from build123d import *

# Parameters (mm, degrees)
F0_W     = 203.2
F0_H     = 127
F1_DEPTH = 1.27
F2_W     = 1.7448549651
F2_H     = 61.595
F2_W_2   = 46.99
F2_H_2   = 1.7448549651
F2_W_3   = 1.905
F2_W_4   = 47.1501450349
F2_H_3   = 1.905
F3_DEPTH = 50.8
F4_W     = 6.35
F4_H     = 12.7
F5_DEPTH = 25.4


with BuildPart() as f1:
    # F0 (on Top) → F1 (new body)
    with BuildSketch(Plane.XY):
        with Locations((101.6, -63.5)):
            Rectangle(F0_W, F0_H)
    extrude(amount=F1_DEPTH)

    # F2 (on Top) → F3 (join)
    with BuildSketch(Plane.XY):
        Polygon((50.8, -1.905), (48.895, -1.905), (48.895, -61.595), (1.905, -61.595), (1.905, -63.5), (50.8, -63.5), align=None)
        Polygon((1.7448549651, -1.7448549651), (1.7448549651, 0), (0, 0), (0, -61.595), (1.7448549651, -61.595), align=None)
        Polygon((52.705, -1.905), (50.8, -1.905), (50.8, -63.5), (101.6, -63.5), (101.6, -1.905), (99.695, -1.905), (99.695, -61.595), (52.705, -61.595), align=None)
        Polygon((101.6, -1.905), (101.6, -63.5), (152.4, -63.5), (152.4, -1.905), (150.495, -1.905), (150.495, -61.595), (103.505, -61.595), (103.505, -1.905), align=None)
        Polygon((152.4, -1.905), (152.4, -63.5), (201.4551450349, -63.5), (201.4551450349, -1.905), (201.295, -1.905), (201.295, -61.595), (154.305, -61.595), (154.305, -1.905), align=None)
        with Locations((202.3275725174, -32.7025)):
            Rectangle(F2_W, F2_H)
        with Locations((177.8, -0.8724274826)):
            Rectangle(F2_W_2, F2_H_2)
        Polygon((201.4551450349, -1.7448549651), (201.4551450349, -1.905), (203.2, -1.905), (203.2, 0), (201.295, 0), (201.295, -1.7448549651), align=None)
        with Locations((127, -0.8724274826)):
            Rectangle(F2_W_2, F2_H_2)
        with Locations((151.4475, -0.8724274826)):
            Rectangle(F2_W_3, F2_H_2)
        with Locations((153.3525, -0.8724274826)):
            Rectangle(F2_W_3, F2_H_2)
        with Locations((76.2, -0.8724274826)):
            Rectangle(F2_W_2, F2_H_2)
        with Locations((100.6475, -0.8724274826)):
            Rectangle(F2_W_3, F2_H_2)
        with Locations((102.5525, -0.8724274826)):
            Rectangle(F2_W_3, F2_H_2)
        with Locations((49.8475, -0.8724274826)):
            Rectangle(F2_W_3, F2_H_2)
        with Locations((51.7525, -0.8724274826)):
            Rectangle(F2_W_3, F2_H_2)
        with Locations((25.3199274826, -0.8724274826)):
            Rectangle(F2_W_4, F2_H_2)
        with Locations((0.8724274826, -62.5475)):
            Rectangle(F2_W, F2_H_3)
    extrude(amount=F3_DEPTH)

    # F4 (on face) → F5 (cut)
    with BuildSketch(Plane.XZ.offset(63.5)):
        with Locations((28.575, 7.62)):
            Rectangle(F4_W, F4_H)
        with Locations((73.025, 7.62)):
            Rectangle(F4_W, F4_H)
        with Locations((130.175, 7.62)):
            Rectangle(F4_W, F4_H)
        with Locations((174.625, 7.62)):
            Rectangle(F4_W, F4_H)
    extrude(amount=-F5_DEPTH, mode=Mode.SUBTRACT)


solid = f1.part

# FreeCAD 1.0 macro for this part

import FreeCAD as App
import Part
import Sketcher

V = App.Vector
Q = App.Units.Quantity

doc = App.newDocument("Part")
body = doc.addObject("PartDesign::Body", "Body")

# Sketch on XY plane
sketch1 = body.newObject("Sketcher::SketchObject", "Sketch")
sketch1.AttachmentSupport = (doc.getObject("XY_Plane"), [""])
sketch1.MapMode = "FlatFace"
sketch1.addGeometry([
    Part.LineSegment(V(0, 0, 0), V(0, -127, 0)),
    Part.LineSegment(V(0, -127, 0), V(203, -127, 0)),
    Part.LineSegment(V(203, -127, 0), V(203, 0, 0)),
    Part.LineSegment(V(203, 0, 0), V(0, 0, 0)),
], False)
sketch1.addConstraint([
    Sketcher.Constraint("Coincident", 0, 2, 1, 1),
    Sketcher.Constraint("Coincident", 1, 2, 2, 1),
    Sketcher.Constraint("Coincident", 2, 2, 3, 1),
    Sketcher.Constraint("Coincident", 3, 2, 0, 1),
    Sketcher.Constraint("Vertical", 0),
    Sketcher.Constraint("Horizontal", 1),
    Sketcher.Constraint("Vertical", 2),
    Sketcher.Constraint("Horizontal", 3),
    Sketcher.Constraint("Coincident", 3, 2, -1, 1),
    Sketcher.Constraint("DistanceX", 1, 1, 1, 2, Q("8 in")),
    Sketcher.Constraint("DistanceY", 0, 2, 0, 1, Q("5 in")),
])
pad1 = body.newObject("PartDesign::Pad", "Pad")
pad1.Profile = sketch1
pad1.Length = Q("0.05 in")

# Sketch on XY plane
sketch2 = body.newObject("Sketcher::SketchObject", "Sketch001")
sketch2.AttachmentSupport = (doc.getObject("XY_Plane"), [""])
sketch2.MapMode = "FlatFace"
sketch2.addGeometry([
    Part.LineSegment(V(48.9, -1.91, 0), V(48.9, -61.59, 0)),  # 0
    Part.LineSegment(V(48.9, -61.59, 0), V(1.91, -61.59, 0)),  # 1
    Part.LineSegment(V(1.91, -61.59, 0), V(1.91, -63.5, 0)),  # 2
    Part.LineSegment(V(1.91, -63.5, 0), V(203.2, -63.5, 0)),  # 3
    Part.LineSegment(V(203.2, -63.5, 0), V(203.2, 0, 0)),  # 4
    Part.LineSegment(V(203.2, 0, 0), V(0, 0, 0)),  # 5
    Part.LineSegment(V(0, 0, 0), V(0, -63.5, 0)),  # 6
    Part.LineSegment(V(0, -63.5, 0), V(1.74, -63.5, 0)),  # 7
    Part.LineSegment(V(1.74, -63.5, 0), V(1.74, -1.74, 0)),  # 8
    Part.LineSegment(V(1.74, -1.74, 0), V(201.46, -1.74, 0)),  # 9
    Part.LineSegment(V(201.46, -1.74, 0), V(201.46, -1.91, 0)),  # 10
    Part.LineSegment(V(201.46, -1.91, 0), V(201.29, -1.91, 0)),  # 11
    Part.LineSegment(V(201.29, -1.91, 0), V(201.29, -61.59, 0)),  # 12
    Part.LineSegment(V(201.29, -61.59, 0), V(154.31, -61.59, 0)),  # 13
    Part.LineSegment(V(154.31, -61.59, 0), V(154.31, -1.91, 0)),  # 14
    Part.LineSegment(V(154.31, -1.91, 0), V(150.5, -1.91, 0)),  # 15
    Part.LineSegment(V(150.5, -1.91, 0), V(150.5, -61.59, 0)),  # 16
    Part.LineSegment(V(150.5, -61.59, 0), V(103.5, -61.59, 0)),  # 17
    Part.LineSegment(V(103.5, -61.59, 0), V(103.5, -1.91, 0)),  # 18
    Part.LineSegment(V(103.5, -1.91, 0), V(99.69, -1.91, 0)),  # 19
    Part.LineSegment(V(99.69, -1.91, 0), V(99.69, -61.59, 0)),  # 20
    Part.LineSegment(V(99.69, -61.59, 0), V(52.7, -61.59, 0)),  # 21
    Part.LineSegment(V(52.7, -61.59, 0), V(52.7, -1.91, 0)),  # 22
    Part.LineSegment(V(52.7, -1.91, 0), V(48.9, -1.91, 0)),  # 23
], False)
sketch2.addConstraint([
    Sketcher.Constraint("Coincident", 0, 2, 1, 1),
    Sketcher.Constraint("Coincident", 1, 2, 2, 1),
    Sketcher.Constraint("Coincident", 2, 2, 3, 1),
    Sketcher.Constraint("Coincident", 3, 2, 4, 1),
    Sketcher.Constraint("Coincident", 4, 2, 5, 1),
    Sketcher.Constraint("Coincident", 5, 2, 6, 1),
    Sketcher.Constraint("Coincident", 6, 2, 7, 1),
    Sketcher.Constraint("Coincident", 7, 2, 8, 1),
    Sketcher.Constraint("Coincident", 8, 2, 9, 1),
    Sketcher.Constraint("Coincident", 9, 2, 10, 1),
    Sketcher.Constraint("Coincident", 10, 2, 11, 1),
    Sketcher.Constraint("Coincident", 11, 2, 12, 1),
    Sketcher.Constraint("Coincident", 12, 2, 13, 1),
    Sketcher.Constraint("Coincident", 13, 2, 14, 1),
    Sketcher.Constraint("Coincident", 14, 2, 15, 1),
    Sketcher.Constraint("Coincident", 15, 2, 16, 1),
    Sketcher.Constraint("Coincident", 16, 2, 17, 1),
    Sketcher.Constraint("Coincident", 17, 2, 18, 1),
    Sketcher.Constraint("Coincident", 18, 2, 19, 1),
    Sketcher.Constraint("Coincident", 19, 2, 20, 1),
    Sketcher.Constraint("Coincident", 20, 2, 21, 1),
    Sketcher.Constraint("Coincident", 21, 2, 22, 1),
    Sketcher.Constraint("Coincident", 22, 2, 23, 1),
    Sketcher.Constraint("Coincident", 23, 2, 0, 1),
    Sketcher.Constraint("Vertical", 0),
    Sketcher.Constraint("Horizontal", 1),
    Sketcher.Constraint("Vertical", 2),
    Sketcher.Constraint("Horizontal", 3),
    Sketcher.Constraint("Vertical", 4),
    Sketcher.Constraint("Horizontal", 5),
    Sketcher.Constraint("Vertical", 6),
    Sketcher.Constraint("Horizontal", 7),
    Sketcher.Constraint("Vertical", 8),
    Sketcher.Constraint("Horizontal", 9),
    Sketcher.Constraint("Vertical", 10),
    Sketcher.Constraint("Horizontal", 11),
    Sketcher.Constraint("Vertical", 12),
    Sketcher.Constraint("Horizontal", 13),
    Sketcher.Constraint("Vertical", 14),
    Sketcher.Constraint("Horizontal", 15),
    Sketcher.Constraint("Vertical", 16),
    Sketcher.Constraint("Horizontal", 17),
    Sketcher.Constraint("Vertical", 18),
    Sketcher.Constraint("Horizontal", 19),
    Sketcher.Constraint("Vertical", 20),
    Sketcher.Constraint("Horizontal", 21),
    Sketcher.Constraint("Vertical", 22),
    Sketcher.Constraint("Horizontal", 23),
    Sketcher.Constraint("Coincident", 5, 2, -1, 1),
    Sketcher.Constraint("Horizontal", 3, 2, 6, 2),
    Sketcher.Constraint("Horizontal", 1, 2, 12, 2),
    Sketcher.Constraint("Horizontal", 11, 2, 14, 2),
    Sketcher.Constraint("Horizontal", 13, 2, 16, 2),
    Sketcher.Constraint("Horizontal", 15, 2, 18, 2),
    Sketcher.Constraint("Horizontal", 17, 2, 20, 2),
    Sketcher.Constraint("Horizontal", 19, 2, 22, 2),
    Sketcher.Constraint("Equal", 1, 13),
    Sketcher.Constraint("Equal", 13, 17),
    Sketcher.Constraint("Equal", 15, 19),
    Sketcher.Constraint("Equal", 17, 21),
    Sketcher.Constraint("Equal", 19, 23),
    Sketcher.Constraint("Equal", 11, 10),
    Sketcher.Constraint("DistanceX", 5, 2, 5, 1, Q("8 in")),
    Sketcher.Constraint("DistanceY", 4, 1, 4, 2, Q("2.5 in")),
    Sketcher.Constraint("DistanceX", 0, 2, 11, 2, Q("6 in")),
    Sketcher.Constraint("DistanceX", 1, 2, 1, 1, Q("1.85 in")),
    Sketcher.Constraint("DistanceY", 0, 2, 0, 1, Q("2.35 in")),
    Sketcher.Constraint("DistanceX", 3, 1, 3, 2, Q("7.925 in")),
    Sketcher.Constraint("DistanceY", 2, 2, 2, 1, Q("0.075 in")),
    Sketcher.Constraint("DistanceX", 9, 1, 9, 2, 199.71029),
    Sketcher.Constraint("DistanceX", 7, 1, 7, 2, 1.744855),
])
pad2 = body.newObject("PartDesign::Pad", "Pad001")
pad2.Profile = sketch2
pad2.Length = Q("2 in")

# Sketch on XZ plane
sketch3 = body.newObject("Sketcher::SketchObject", "Sketch002")
sketch3.AttachmentSupport = (doc.getObject("XZ_Plane"), [""])
sketch3.MapMode = "FlatFace"
sketch3.AttachmentOffset = App.Placement(V(0, 0, 2.5 * 25.4), App.Rotation())
sketch3.addGeometry([
    Part.LineSegment(V(25, 14, 0), V(25, 1, 0)),  # 0
    Part.LineSegment(V(25, 1, 0), V(32, 1, 0)),  # 1
    Part.LineSegment(V(32, 1, 0), V(32, 14, 0)),  # 2
    Part.LineSegment(V(32, 14, 0), V(25, 14, 0)),  # 3
    Part.LineSegment(V(70, 14, 0), V(70, 1, 0)),  # 4
    Part.LineSegment(V(70, 1, 0), V(76, 1, 0)),  # 5
    Part.LineSegment(V(76, 1, 0), V(76, 14, 0)),  # 6
    Part.LineSegment(V(76, 14, 0), V(70, 14, 0)),  # 7
    Part.LineSegment(V(127, 14, 0), V(127, 1, 0)),  # 8
    Part.LineSegment(V(127, 1, 0), V(133, 1, 0)),  # 9
    Part.LineSegment(V(133, 1, 0), V(133, 14, 0)),  # 10
    Part.LineSegment(V(133, 14, 0), V(127, 14, 0)),  # 11
    Part.LineSegment(V(171, 14, 0), V(171, 1, 0)),  # 12
    Part.LineSegment(V(171, 1, 0), V(178, 1, 0)),  # 13
    Part.LineSegment(V(178, 1, 0), V(178, 14, 0)),  # 14
    Part.LineSegment(V(178, 14, 0), V(171, 14, 0)),  # 15
], False)
sketch3.addConstraint([
    Sketcher.Constraint("Coincident", 0, 2, 1, 1),
    Sketcher.Constraint("Coincident", 1, 2, 2, 1),
    Sketcher.Constraint("Coincident", 2, 2, 3, 1),
    Sketcher.Constraint("Coincident", 3, 2, 0, 1),
    Sketcher.Constraint("Coincident", 4, 2, 5, 1),
    Sketcher.Constraint("Coincident", 5, 2, 6, 1),
    Sketcher.Constraint("Coincident", 6, 2, 7, 1),
    Sketcher.Constraint("Coincident", 7, 2, 4, 1),
    Sketcher.Constraint("Coincident", 8, 2, 9, 1),
    Sketcher.Constraint("Coincident", 9, 2, 10, 1),
    Sketcher.Constraint("Coincident", 10, 2, 11, 1),
    Sketcher.Constraint("Coincident", 11, 2, 8, 1),
    Sketcher.Constraint("Coincident", 12, 2, 13, 1),
    Sketcher.Constraint("Coincident", 13, 2, 14, 1),
    Sketcher.Constraint("Coincident", 14, 2, 15, 1),
    Sketcher.Constraint("Coincident", 15, 2, 12, 1),
    Sketcher.Constraint("Vertical", 0),
    Sketcher.Constraint("Horizontal", 1),
    Sketcher.Constraint("Vertical", 2),
    Sketcher.Constraint("Horizontal", 3),
    Sketcher.Constraint("Vertical", 4),
    Sketcher.Constraint("Horizontal", 5),
    Sketcher.Constraint("Vertical", 6),
    Sketcher.Constraint("Horizontal", 7),
    Sketcher.Constraint("Vertical", 8),
    Sketcher.Constraint("Horizontal", 9),
    Sketcher.Constraint("Vertical", 10),
    Sketcher.Constraint("Horizontal", 11),
    Sketcher.Constraint("Vertical", 12),
    Sketcher.Constraint("Horizontal", 13),
    Sketcher.Constraint("Vertical", 14),
    Sketcher.Constraint("Horizontal", 15),
    Sketcher.Constraint("Horizontal", 1, 2, 4, 2),
    Sketcher.Constraint("Horizontal", 3, 2, 6, 2),
    Sketcher.Constraint("Horizontal", 5, 2, 8, 2),
    Sketcher.Constraint("Horizontal", 7, 2, 10, 2),
    Sketcher.Constraint("Horizontal", 9, 2, 12, 2),
    Sketcher.Constraint("Horizontal", 11, 2, 14, 2),
    Sketcher.Constraint("Equal", 3, 5),
    Sketcher.Constraint("Equal", 7, 9),
    Sketcher.Constraint("Equal", 11, 13),
    Sketcher.Constraint("DistanceY", 0, 2, 0, 1, Q("0.5 in")),
    Sketcher.Constraint("DistanceX", -1, 1, 0, 2, Q("1 in")),
    Sketcher.Constraint("DistanceX", -1, 1, 5, 2, Q("3 in")),
    Sketcher.Constraint("DistanceX", -1, 1, 8, 2, Q("5 in")),
    Sketcher.Constraint("DistanceX", -1, 1, 13, 2, Q("7 in")),
    Sketcher.Constraint("DistanceX", 1, 1, 1, 2, Q("0.25 in")),
    Sketcher.Constraint("DistanceY", -1, 1, 0, 2, Q("0.05 in")),
])
pocket1 = body.newObject("PartDesign::Pocket", "Pocket")
pocket1.Profile = sketch3
pocket1.Length = Q("1 in")

doc.recompute()
